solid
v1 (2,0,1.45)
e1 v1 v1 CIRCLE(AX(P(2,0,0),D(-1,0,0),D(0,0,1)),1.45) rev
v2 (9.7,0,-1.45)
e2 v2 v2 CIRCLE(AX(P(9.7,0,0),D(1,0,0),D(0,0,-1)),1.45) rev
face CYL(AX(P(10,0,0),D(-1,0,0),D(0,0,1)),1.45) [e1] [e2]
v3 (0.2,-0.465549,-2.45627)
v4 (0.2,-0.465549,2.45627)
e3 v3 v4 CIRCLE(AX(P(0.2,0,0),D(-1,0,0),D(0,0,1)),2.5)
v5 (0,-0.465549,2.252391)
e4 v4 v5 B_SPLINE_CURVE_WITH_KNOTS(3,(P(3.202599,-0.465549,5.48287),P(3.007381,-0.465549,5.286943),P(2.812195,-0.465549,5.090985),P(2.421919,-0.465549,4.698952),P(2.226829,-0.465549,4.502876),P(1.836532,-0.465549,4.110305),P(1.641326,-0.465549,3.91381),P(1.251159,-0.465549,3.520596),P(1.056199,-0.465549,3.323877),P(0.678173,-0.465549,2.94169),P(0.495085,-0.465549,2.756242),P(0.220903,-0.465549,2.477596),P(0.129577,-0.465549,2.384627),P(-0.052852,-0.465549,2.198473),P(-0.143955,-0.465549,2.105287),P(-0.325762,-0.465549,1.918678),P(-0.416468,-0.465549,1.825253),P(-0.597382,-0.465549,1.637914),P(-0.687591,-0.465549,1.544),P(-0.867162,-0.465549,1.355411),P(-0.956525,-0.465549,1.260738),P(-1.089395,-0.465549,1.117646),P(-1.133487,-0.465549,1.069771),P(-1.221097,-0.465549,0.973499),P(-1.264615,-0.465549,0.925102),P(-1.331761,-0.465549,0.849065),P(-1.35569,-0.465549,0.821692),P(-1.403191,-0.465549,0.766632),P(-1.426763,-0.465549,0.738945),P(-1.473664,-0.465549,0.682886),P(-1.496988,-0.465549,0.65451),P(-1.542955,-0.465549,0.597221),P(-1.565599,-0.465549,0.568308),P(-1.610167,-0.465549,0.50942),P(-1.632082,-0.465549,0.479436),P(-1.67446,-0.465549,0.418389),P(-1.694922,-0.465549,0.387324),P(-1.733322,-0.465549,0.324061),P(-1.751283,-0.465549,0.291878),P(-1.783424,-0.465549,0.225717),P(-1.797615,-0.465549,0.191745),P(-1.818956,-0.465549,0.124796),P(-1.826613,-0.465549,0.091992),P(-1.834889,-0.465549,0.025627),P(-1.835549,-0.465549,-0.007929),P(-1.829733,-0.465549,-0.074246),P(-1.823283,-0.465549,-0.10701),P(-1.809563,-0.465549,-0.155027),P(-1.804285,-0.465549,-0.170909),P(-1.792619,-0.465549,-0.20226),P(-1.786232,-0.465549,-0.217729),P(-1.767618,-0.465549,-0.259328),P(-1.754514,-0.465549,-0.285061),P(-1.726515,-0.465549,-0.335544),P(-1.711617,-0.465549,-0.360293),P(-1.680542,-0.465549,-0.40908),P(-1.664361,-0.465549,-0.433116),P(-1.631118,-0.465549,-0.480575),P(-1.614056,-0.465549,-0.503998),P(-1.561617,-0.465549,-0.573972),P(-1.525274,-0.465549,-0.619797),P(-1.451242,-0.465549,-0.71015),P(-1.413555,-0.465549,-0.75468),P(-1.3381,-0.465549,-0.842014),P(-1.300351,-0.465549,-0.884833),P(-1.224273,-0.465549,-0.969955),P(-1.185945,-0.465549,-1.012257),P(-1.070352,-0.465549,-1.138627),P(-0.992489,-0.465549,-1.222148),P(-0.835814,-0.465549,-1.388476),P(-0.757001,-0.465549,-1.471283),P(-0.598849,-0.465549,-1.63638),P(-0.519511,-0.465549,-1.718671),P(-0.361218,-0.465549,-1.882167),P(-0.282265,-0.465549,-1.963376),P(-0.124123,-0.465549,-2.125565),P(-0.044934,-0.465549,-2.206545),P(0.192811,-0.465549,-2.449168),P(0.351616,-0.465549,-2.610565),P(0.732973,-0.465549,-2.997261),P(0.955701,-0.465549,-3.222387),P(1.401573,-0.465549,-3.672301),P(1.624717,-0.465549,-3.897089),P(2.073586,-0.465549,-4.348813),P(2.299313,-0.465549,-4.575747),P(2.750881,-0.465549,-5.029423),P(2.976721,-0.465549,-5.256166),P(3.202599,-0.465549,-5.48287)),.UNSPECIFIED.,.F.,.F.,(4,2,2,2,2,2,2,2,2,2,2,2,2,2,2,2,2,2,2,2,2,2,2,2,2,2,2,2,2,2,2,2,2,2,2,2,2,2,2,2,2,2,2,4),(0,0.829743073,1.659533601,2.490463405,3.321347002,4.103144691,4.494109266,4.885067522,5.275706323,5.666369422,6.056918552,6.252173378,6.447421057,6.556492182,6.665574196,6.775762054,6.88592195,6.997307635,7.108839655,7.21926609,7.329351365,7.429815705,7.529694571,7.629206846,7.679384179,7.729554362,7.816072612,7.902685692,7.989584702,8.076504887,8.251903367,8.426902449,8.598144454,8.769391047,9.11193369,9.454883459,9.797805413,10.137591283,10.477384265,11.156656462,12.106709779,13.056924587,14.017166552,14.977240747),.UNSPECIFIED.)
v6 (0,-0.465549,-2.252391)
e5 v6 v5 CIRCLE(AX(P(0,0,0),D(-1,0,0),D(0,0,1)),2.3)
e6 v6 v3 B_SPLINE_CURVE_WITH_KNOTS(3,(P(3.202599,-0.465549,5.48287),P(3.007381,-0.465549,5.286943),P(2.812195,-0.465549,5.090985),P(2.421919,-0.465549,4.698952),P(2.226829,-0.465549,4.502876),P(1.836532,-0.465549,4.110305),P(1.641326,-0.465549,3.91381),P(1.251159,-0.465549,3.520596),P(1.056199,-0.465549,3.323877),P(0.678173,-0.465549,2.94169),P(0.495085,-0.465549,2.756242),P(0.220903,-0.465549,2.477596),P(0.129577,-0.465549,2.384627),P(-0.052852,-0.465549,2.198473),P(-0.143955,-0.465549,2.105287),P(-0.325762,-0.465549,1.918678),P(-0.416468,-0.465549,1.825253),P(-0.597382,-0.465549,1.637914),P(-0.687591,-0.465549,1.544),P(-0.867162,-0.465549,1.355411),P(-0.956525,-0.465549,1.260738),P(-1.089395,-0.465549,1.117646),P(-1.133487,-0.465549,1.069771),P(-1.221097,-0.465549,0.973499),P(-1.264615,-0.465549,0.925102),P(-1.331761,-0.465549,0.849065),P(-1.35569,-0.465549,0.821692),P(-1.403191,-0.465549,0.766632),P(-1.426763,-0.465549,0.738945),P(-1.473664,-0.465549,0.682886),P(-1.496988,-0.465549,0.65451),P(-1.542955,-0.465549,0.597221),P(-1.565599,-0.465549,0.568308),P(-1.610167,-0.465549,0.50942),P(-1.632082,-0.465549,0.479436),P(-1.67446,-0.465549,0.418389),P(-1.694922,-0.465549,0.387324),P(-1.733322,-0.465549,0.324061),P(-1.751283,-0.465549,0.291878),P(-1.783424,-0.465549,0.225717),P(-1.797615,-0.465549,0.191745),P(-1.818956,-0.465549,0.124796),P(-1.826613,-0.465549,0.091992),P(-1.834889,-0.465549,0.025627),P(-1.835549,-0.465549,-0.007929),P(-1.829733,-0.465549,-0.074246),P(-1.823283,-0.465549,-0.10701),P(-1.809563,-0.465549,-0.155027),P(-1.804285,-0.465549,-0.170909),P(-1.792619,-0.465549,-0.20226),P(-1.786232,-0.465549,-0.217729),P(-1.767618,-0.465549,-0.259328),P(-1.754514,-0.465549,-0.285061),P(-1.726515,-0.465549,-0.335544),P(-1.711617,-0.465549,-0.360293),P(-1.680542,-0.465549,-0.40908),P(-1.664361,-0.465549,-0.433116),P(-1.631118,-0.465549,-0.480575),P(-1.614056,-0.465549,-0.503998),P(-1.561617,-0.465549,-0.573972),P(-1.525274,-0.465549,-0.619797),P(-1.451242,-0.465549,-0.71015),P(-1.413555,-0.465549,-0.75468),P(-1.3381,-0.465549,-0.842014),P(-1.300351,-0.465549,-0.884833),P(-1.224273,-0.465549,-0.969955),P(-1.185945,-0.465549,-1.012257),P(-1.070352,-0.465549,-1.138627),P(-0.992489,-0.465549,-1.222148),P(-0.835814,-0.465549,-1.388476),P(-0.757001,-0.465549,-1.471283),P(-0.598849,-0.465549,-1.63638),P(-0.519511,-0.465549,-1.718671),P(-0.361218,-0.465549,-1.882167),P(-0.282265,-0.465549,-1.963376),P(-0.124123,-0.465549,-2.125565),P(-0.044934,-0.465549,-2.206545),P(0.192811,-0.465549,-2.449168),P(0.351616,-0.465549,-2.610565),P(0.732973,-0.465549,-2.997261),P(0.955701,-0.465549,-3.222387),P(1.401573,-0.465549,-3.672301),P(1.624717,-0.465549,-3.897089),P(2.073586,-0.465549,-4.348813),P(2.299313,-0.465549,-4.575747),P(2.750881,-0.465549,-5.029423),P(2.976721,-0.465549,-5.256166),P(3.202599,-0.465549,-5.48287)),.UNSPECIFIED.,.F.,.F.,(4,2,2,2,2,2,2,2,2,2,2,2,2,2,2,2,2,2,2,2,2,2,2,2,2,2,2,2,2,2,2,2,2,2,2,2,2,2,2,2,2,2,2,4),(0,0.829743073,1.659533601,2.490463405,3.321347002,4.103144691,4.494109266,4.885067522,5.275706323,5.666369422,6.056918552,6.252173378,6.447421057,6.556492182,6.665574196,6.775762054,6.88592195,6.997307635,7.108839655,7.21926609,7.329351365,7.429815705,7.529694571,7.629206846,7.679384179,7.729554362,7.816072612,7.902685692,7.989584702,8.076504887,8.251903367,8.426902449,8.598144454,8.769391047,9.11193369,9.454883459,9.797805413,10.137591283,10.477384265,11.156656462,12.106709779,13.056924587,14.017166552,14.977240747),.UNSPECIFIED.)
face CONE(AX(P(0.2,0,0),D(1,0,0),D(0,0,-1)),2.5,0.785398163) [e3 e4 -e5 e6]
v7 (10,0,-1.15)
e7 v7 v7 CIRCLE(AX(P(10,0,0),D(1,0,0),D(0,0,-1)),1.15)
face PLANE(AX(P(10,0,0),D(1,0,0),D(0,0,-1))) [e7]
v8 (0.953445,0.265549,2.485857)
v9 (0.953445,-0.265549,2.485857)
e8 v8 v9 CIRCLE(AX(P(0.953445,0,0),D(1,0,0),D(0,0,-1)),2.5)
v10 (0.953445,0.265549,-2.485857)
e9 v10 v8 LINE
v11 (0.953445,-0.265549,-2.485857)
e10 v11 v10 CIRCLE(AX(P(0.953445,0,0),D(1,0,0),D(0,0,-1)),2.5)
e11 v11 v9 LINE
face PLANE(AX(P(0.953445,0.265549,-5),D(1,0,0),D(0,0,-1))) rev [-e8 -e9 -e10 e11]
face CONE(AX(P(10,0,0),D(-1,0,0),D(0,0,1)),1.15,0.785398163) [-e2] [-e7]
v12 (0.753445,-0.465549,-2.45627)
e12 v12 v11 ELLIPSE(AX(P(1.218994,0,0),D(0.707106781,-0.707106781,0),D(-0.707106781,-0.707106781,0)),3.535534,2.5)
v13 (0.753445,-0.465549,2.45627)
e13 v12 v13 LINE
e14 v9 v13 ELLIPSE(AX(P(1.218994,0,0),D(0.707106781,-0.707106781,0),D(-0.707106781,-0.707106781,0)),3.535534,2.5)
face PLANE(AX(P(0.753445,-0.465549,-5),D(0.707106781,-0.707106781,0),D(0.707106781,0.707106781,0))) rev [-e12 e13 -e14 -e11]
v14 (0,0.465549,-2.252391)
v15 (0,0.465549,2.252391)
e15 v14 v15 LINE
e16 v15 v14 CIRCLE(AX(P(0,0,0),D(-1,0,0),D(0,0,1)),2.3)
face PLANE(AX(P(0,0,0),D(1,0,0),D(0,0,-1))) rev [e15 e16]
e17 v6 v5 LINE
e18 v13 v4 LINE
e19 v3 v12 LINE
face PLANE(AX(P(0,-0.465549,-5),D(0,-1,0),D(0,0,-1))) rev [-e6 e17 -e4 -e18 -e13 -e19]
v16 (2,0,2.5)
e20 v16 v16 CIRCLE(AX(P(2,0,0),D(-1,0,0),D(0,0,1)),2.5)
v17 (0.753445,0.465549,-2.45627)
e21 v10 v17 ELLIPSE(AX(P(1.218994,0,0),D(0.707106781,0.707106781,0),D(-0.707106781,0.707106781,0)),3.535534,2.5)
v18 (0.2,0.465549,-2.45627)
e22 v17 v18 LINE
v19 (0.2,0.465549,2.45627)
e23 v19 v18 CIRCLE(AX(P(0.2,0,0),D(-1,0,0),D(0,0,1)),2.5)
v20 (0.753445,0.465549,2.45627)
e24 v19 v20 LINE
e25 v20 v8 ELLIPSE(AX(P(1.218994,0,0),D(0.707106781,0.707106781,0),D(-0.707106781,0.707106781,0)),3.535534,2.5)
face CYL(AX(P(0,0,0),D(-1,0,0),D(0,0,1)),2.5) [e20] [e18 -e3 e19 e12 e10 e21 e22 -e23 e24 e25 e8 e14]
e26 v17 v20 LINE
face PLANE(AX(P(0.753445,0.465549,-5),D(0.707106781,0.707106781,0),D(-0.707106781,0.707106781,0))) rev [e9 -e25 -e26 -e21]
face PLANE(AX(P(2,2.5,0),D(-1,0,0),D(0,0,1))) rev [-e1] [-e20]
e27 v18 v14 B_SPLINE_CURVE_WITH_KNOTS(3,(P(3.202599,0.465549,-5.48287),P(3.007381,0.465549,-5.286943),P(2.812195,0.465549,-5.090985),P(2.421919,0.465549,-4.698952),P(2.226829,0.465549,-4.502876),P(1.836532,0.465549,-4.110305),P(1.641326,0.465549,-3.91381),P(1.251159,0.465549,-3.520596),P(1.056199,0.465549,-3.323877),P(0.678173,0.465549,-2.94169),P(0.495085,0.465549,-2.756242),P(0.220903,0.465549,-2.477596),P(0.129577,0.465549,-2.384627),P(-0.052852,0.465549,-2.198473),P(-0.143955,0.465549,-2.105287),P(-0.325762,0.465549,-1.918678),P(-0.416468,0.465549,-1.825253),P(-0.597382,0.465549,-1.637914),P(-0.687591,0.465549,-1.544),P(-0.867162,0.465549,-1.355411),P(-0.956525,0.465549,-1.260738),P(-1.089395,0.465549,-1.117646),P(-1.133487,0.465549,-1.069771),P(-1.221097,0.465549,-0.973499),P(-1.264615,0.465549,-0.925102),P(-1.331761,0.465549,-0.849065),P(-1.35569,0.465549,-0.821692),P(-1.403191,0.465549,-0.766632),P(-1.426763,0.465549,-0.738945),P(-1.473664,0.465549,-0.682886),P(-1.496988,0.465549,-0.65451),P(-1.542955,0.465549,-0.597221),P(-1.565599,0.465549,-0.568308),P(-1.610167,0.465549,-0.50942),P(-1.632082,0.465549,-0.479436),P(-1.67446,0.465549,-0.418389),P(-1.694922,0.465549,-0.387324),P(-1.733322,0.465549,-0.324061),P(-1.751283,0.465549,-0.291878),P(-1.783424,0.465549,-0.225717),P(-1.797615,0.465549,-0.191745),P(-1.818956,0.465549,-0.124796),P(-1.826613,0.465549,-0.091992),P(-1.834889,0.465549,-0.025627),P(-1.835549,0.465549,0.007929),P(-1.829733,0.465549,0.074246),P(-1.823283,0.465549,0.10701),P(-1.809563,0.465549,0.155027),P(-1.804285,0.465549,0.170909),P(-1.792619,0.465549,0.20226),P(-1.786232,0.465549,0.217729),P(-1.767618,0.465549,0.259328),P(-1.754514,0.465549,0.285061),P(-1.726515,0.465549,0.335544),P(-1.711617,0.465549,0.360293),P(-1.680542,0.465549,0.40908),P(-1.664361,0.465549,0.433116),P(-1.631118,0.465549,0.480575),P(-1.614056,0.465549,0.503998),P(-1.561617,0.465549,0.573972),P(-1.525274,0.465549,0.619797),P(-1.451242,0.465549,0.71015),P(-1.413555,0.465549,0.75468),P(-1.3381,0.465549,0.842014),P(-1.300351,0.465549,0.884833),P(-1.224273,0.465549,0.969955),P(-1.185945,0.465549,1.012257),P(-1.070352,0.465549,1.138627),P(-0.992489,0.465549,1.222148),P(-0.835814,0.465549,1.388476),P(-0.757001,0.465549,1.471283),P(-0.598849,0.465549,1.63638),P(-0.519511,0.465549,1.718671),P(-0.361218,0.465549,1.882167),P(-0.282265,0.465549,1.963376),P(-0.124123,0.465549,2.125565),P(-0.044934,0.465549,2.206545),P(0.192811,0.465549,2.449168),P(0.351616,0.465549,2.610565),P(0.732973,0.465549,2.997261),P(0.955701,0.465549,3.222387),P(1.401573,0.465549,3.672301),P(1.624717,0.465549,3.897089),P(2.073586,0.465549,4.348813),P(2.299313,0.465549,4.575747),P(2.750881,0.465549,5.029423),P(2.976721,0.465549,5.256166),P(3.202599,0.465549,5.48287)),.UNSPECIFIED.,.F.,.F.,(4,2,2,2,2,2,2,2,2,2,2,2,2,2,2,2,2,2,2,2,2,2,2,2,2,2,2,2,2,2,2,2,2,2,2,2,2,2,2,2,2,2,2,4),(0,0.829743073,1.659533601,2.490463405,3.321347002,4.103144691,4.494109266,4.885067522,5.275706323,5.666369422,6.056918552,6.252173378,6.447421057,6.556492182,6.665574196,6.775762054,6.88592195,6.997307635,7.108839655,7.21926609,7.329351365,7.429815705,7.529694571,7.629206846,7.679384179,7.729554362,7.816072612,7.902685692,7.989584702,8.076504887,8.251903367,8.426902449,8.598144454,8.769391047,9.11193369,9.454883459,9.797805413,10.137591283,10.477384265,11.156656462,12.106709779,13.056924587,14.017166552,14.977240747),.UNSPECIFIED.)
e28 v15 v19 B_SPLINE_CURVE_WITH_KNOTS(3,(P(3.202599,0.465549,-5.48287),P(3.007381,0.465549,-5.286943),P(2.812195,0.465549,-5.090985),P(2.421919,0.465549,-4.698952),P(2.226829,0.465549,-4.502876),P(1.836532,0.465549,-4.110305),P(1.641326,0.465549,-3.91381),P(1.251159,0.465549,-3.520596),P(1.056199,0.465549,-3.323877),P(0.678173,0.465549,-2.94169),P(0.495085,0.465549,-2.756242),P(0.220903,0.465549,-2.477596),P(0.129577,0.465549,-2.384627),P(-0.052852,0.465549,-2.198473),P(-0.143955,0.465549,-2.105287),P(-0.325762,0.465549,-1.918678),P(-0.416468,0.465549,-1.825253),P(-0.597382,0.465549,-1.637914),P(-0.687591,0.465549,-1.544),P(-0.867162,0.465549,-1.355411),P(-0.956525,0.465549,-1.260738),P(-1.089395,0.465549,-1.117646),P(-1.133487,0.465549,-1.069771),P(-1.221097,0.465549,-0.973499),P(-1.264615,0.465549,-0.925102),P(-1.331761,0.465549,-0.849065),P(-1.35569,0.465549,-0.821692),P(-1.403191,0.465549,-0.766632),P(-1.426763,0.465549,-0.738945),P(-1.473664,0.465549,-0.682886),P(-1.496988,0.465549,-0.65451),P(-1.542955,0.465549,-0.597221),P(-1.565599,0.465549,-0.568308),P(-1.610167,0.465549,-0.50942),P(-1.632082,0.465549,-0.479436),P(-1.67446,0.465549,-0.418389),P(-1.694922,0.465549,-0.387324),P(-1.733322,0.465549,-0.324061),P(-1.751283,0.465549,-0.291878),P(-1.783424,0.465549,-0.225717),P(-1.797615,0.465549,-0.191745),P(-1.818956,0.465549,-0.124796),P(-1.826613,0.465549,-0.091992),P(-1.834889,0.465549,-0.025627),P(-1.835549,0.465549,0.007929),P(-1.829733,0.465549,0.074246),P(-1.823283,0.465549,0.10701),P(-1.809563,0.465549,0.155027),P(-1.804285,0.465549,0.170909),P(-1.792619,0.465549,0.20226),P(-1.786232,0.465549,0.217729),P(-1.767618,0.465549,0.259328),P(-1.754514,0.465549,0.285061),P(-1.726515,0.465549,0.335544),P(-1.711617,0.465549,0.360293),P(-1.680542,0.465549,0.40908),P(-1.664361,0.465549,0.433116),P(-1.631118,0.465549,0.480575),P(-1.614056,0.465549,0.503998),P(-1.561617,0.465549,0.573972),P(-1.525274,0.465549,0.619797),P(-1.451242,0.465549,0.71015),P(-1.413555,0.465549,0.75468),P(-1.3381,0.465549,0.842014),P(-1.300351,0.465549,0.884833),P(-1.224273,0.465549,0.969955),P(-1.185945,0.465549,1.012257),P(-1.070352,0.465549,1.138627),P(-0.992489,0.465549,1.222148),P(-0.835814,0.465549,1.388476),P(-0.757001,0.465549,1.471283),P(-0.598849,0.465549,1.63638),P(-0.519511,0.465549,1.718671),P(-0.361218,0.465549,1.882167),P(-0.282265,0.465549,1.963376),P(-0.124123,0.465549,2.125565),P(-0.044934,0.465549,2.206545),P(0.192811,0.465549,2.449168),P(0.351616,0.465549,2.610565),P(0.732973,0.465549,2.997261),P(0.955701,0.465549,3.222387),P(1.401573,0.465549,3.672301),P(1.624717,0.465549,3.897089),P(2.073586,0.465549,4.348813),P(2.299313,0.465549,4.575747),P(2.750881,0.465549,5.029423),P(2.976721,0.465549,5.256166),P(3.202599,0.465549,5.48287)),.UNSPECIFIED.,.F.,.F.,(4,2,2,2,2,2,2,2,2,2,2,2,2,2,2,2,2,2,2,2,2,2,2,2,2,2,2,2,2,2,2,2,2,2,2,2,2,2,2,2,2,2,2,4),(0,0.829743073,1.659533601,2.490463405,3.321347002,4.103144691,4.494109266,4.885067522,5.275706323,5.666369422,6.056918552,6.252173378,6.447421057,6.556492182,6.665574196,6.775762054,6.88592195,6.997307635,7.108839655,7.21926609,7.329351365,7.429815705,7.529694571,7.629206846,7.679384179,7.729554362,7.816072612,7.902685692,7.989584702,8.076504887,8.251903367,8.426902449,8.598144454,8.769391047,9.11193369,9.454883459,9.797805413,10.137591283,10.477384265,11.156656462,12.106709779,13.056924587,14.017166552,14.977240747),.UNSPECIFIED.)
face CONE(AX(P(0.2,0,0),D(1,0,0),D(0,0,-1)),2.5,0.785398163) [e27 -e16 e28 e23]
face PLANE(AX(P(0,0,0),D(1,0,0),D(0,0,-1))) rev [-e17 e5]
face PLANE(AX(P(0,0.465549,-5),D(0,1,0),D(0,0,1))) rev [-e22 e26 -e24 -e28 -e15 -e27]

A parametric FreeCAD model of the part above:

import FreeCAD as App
import Part
import Sketcher

V = App.Vector
Q = App.Units.Quantity


def edges_at(feature, points):
    """Names of the edges that pass closest to the given points."""
    edges = feature.Shape.Edges
    near = lambda p: min(range(len(edges)), key=lambda i: edges[i].distToShape(Part.Vertex(*p))[0])
    return sorted({f"Edge{near(p) + 1}" for p in points})

doc = App.newDocument("Part")
params = doc.addObject("Spreadsheet::Sheet", "Params")
for row, (alias, value) in enumerate([
    ("sketch1_width", "2 mm"),
    ("sketch1_width2", "1.8 mm"),
    ("sketch1_height", "2.3 mm"),
    ("revolution_angle", "360 deg"),
    ("pocket1_length", "10 mm"),
    ("sketch3_diameter", "2.9 mm"),
    ("pad1_length", "8 mm"),
    ("chamfer_size", "0.3 mm"),
], start=1):
    params.set(f"A{row}", alias)
    params.set(f"B{row}", "=" + value)
    params.setAlias(f"B{row}", alias)

body = doc.addObject("PartDesign::Body", "Body")

sketch1 = body.newObject("Sketcher::SketchObject", "Sketch")
sketch1.AttachmentSupport = (doc.getObject("XY_Plane"), [""])
sketch1.MapMode = "FlatFace"
sketch1.addGeometry([
    Part.LineSegment(V(0, 2.3, 0), V(0, 0, 0)),
    Part.LineSegment(V(0, 0, 0), V(2, 0, 0)),
    Part.LineSegment(V(2, 0, 0), V(2, 2.5, 0)),
    Part.LineSegment(V(2, 2.5, 0), V(0.2, 2.5, 0)),
    Part.LineSegment(V(0.2, 2.5, 0), V(0, 2.3, 0)),
], False)
sketch1.addConstraint([
    Sketcher.Constraint("Coincident", 0, 2, 1, 1),
    Sketcher.Constraint("Coincident", 1, 2, 2, 1),
    Sketcher.Constraint("Coincident", 2, 2, 3, 1),
    Sketcher.Constraint("Coincident", 3, 2, 4, 1),
    Sketcher.Constraint("Coincident", 4, 2, 0, 1),
    Sketcher.Constraint("Vertical", 0),
    Sketcher.Constraint("Horizontal", 1),
    Sketcher.Constraint("Vertical", 2),
    Sketcher.Constraint("Horizontal", 3),
    Sketcher.Constraint("Coincident", 0, 2, -1, 1),
    Sketcher.Constraint("DistanceX", 1, 1, 1, 2, 2.0),
    Sketcher.Constraint("Angle", 4, Q("-135 deg")),
    Sketcher.Constraint("DistanceX", 3, 2, 3, 1, 1.8),
    Sketcher.Constraint("DistanceY", 0, 2, 0, 1, 2.3),
])
sketch1.setExpression("Constraints[10]", "Params.sketch1_width")
sketch1.setExpression("Constraints[12]", "Params.sketch1_width2")
sketch1.setExpression("Constraints[13]", "Params.sketch1_height")
revolution = body.newObject("PartDesign::Revolution", "Revolution")
revolution.Profile = sketch1
revolution.ReferenceAxis = (sketch1, ["H_Axis"])
revolution.setExpression("Angle", "Params.revolution_angle")

sketch2 = body.newObject("Sketcher::SketchObject", "Sketch001")
sketch2.AttachmentSupport = (doc.getObject("XY_Plane"), [""])
sketch2.MapMode = "FlatFace"
sketch2.addGeometry([
    Part.LineSegment(V(0.753445, 0.465549, 0), V(0, 0.465549, 0)),
    Part.LineSegment(V(0, 0.465549, 0), V(0, -0.465549, 0)),
    Part.LineSegment(V(0, -0.465549, 0), V(0.753445, -0.465549, 0)),
    Part.LineSegment(V(0.753445, -0.465549, 0), V(0.953445, -0.265549, 0)),
    Part.LineSegment(V(0.953445, -0.265549, 0), V(0.953445, 0.265549, 0)),
    Part.LineSegment(V(0.953445, 0.265549, 0), V(0.753445, 0.465549, 0)),
], False)
sketch2.addConstraint([
    Sketcher.Constraint("Coincident", 0, 2, 1, 1),
    Sketcher.Constraint("Coincident", 1, 2, 2, 1),
    Sketcher.Constraint("Coincident", 2, 2, 3, 1),
    Sketcher.Constraint("Coincident", 3, 2, 4, 1),
    Sketcher.Constraint("Coincident", 4, 2, 5, 1),
    Sketcher.Constraint("Coincident", 5, 2, 0, 1),
    Sketcher.Constraint("Horizontal", 0),
    Sketcher.Constraint("Vertical", 1),
    Sketcher.Constraint("Horizontal", 2),
    Sketcher.Constraint("Vertical", 4),
    Sketcher.Constraint("Symmetric", 0, 2, 1, 2, -1, 1),
    Sketcher.Constraint("Perpendicular", 3, 5),
    Sketcher.Constraint("Vertical", 2, 2, 5, 2),
    Sketcher.Constraint("Equal", 3, 5),
    Sketcher.Constraint("DistanceX", 2, 2, 3, 2, 0.2),
    Sketcher.Constraint("DistanceY", 1, 2, 1, 1, 0.931099),
    Sketcher.Constraint("DistanceX", 0, 2, 0, 1, 0.753445),
])
pocket1 = body.newObject("PartDesign::Pocket", "Pocket")
pocket1.Profile = sketch2
pocket1.setExpression("Length", "Params.pocket1_length")
pocket1.Midplane = True

sketch3 = body.newObject("Sketcher::SketchObject", "Sketch002")
sketch3.AttachmentSupport = (doc.getObject("YZ_Plane"), [""])
sketch3.MapMode = "FlatFace"
sketch3.AttachmentOffset = App.Placement(V(0, 0, 2), App.Rotation())
sketch3.addGeometry(Part.Circle(V(0, 0, 0), V(0, 0, 1), 1.45), False)
sketch3.addConstraint([
    Sketcher.Constraint("Coincident", 0, 3, -1, 1),
    Sketcher.Constraint("Diameter", 0, 2.9),
])
sketch3.setExpression("Constraints[1]", "Params.sketch3_diameter")
pad1 = body.newObject("PartDesign::Pad", "Pad")
pad1.Profile = sketch3
pad1.setExpression("Length", "Params.pad1_length")
doc.recompute()

chamfer = body.newObject("PartDesign::Chamfer", "Chamfer")
chamfer.Base = (pad1, edges_at(pad1, [(10, 0, -1.45)]))
chamfer.setExpression("Size", "Params.chamfer_size")

doc.recompute()
